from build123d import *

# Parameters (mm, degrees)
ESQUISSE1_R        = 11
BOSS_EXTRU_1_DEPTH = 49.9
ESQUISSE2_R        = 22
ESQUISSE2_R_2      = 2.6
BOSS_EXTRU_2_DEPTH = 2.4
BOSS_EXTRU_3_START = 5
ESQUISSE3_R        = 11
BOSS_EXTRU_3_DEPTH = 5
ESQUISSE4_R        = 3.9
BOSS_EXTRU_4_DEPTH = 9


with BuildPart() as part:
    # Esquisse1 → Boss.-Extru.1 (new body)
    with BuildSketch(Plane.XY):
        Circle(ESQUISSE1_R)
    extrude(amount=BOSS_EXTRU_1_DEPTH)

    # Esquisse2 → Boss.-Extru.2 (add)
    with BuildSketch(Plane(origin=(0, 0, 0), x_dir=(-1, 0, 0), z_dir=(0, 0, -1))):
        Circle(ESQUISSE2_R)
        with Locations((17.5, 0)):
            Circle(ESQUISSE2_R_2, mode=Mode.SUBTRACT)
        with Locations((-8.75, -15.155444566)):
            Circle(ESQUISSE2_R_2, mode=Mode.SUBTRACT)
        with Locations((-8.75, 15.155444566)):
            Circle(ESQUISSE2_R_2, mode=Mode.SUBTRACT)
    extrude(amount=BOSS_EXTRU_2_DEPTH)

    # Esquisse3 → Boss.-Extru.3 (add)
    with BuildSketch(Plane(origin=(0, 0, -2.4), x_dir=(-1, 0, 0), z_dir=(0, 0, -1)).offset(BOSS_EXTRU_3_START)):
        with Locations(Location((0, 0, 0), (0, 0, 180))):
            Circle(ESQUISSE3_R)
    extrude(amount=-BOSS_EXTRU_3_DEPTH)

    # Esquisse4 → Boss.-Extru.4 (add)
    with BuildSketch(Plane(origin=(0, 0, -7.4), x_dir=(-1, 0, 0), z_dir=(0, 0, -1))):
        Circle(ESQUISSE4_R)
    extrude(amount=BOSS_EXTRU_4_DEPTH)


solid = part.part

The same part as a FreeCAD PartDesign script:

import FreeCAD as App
import Part
import Sketcher

V = App.Vector
Q = App.Units.Quantity

doc = App.newDocument("Part")
body = doc.addObject("PartDesign::Body", "Body")

sketch1 = body.newObject("Sketcher::SketchObject", "Sketch")
sketch1.AttachmentSupport = (doc.getObject("XY_Plane"), [""])
sketch1.MapMode = "FlatFace"
sketch1.addGeometry(Part.Circle(V(0, 0, 0), V(0, 0, 1), 11), False)
sketch1.addConstraint(Sketcher.Constraint("Coincident", 0, 3, -1, 1))
sketch1.addConstraint(Sketcher.Constraint("Diameter", 0, Q("22 mm")))
pad1 = body.newObject("PartDesign::Pad", "Pad")
pad1.Profile = sketch1
pad1.Length = 49.9

sketch2 = body.newObject("Sketcher::SketchObject", "Sketch001")
sketch2.AttachmentSupport = (doc.getObject("XY_Plane"), [""])
sketch2.MapMode = "FlatFace"
sketch2.addGeometry(Part.Circle(V(0, 0, 0), V(0, 0, 1), 22), False)
sketch2.addGeometry(Part.Circle(V(8.8, -15.2, 0), V(0, 0, 1), 2.6), False)
sketch2.addGeometry(Part.Circle(V(-17.5, 0, 0), V(0, 0, 1), 2.6), False)
sketch2.addGeometry(Part.Circle(V(8.8, 15.2, 0), V(0, 0, 1), 2.6), False)
sketch2.addConstraint(Sketcher.Constraint("Coincident", 0, 3, -1, 1))
sketch2.addConstraint(Sketcher.Constraint("Equal", 1, 2))
sketch2.addConstraint(Sketcher.Constraint("Equal", 2, 3))
sketch2.addConstraint(Sketcher.Constraint("Symmetric", 1, 3, 3, 3, -1))
sketch2.addConstraint(Sketcher.Constraint("PointOnObject", 2, 3, -1))
sketch2.addConstraint(Sketcher.Constraint("Diameter", 0, Q("44 mm")))
sketch2.addConstraint(Sketcher.Constraint("Diameter", 1, Q("5.2 mm")))
sketch2.addConstraint(Sketcher.Constraint("DistanceX", 2, 3, -1, 1, Q("17.5 mm")))
sketch2.addConstraint(Sketcher.Constraint("DistanceX", -1, 1, 1, 3, Q("8.75 mm")))
sketch2.addConstraint(Sketcher.Constraint("DistanceY", 1, 3, 3, 3, Q("30.310889 mm")))
pad2 = body.newObject("PartDesign::Pad", "Pad001")
pad2.Profile = sketch2
pad2.Length = 2.4
pad2.Reversed = True

sketch3 = body.newObject("Sketcher::SketchObject", "Sketch002")
sketch3.AttachmentSupport = (doc.getObject("XY_Plane"), [""])
sketch3.MapMode = "FlatFace"
sketch3.AttachmentOffset = App.Placement(V(0, 0, -7.4), App.Rotation())
sketch3.addGeometry(Part.Circle(V(0, 0, 0), V(0, 0, 1), 11), False)
sketch3.addConstraint(Sketcher.Constraint("Coincident", 0, 3, -1, 1))
sketch3.addConstraint(Sketcher.Constraint("Diameter", 0, Q("22 mm")))
pad3 = body.newObject("PartDesign::Pad", "Pad002")
pad3.Profile = sketch3
pad3.Length = 5

sketch4 = body.newObject("Sketcher::SketchObject", "Sketch003")
sketch4.AttachmentSupport = (doc.getObject("XY_Plane"), [""])
sketch4.MapMode = "FlatFace"
sketch4.AttachmentOffset = App.Placement(V(0, 0, -7.4), App.Rotation())
sketch4.addGeometry(Part.Circle(V(0, 0, 0), V(0, 0, 1), 3.9), False)
sketch4.addConstraint(Sketcher.Constraint("Coincident", 0, 3, -1, 1))
sketch4.addConstraint(Sketcher.Constraint("Diameter", 0, Q("7.8 mm")))
pad4 = body.newObject("PartDesign::Pad", "Pad003")
pad4.Profile = sketch4
pad4.Length = 9
pad4.Reversed = True

doc.recompute()
